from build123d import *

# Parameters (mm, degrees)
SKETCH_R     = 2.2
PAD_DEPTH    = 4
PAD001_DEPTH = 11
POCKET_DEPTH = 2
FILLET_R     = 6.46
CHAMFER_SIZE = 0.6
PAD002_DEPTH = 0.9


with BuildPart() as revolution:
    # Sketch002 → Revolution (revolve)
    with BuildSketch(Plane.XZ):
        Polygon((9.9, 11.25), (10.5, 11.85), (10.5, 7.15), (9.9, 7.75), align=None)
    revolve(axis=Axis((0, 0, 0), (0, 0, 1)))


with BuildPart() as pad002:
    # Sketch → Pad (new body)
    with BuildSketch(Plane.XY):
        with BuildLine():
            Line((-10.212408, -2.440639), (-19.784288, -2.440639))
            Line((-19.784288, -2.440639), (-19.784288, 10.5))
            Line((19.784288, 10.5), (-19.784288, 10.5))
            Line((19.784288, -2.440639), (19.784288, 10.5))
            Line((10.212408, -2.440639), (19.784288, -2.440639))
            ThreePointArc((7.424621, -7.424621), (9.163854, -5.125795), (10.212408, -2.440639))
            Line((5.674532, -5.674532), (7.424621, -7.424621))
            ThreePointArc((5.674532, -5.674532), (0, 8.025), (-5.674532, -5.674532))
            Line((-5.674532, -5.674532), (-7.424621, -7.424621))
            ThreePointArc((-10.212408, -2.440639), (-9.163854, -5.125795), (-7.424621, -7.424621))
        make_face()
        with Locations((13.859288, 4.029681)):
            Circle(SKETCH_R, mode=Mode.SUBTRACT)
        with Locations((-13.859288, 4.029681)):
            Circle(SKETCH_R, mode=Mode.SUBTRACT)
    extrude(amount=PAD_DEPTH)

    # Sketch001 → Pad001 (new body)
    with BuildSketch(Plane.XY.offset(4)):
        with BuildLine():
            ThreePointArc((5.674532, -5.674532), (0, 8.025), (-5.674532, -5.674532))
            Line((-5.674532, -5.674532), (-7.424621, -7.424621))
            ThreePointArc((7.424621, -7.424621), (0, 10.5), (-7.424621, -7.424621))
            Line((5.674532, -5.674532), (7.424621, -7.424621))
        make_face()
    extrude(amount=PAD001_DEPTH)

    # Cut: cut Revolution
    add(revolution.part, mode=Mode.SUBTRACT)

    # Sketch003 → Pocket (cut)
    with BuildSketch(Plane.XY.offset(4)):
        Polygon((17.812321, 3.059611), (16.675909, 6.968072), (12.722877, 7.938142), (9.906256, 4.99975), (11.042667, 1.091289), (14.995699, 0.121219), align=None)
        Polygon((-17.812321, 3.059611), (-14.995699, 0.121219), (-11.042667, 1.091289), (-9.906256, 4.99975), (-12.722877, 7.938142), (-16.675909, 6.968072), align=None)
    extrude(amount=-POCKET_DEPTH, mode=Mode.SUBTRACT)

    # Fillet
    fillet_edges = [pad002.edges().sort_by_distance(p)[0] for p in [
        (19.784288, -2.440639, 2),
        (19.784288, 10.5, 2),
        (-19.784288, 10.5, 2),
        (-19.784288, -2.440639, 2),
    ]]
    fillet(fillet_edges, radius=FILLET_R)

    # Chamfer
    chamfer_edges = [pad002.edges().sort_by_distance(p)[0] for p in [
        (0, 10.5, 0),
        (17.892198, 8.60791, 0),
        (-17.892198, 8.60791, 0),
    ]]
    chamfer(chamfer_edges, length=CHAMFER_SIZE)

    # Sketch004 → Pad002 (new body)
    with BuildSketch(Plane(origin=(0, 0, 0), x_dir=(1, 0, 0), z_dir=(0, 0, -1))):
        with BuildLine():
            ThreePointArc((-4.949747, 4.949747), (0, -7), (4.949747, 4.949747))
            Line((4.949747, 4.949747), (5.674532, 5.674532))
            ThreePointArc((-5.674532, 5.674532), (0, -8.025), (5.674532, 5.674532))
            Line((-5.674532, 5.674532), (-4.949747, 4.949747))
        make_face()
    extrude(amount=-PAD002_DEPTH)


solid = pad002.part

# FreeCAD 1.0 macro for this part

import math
import FreeCAD as App
import Part
import Sketcher
from FreeCAD import Vector


def edges_at(feature, points):
    """Names of the edges that pass closest to the given points."""
    edges = feature.Shape.Edges
    near = lambda p: min(range(len(edges)), key=lambda i: edges[i].distToShape(Part.Vertex(*p))[0])
    return sorted({f"Edge{near(p) + 1}" for p in points})


def add_polygon(sketch, points):
    """Adds a closed chain of lines whose ends are joined by coincident constraints."""
    first, n = sketch.GeometryCount, len(points)
    for a, b in zip(points, points[1:] + points[:1]):
        sketch.addGeometry(Part.LineSegment(App.Vector(*a, 0), App.Vector(*b, 0)), False)
    for i in range(n):
        sketch.addConstraint(Sketcher.Constraint("Coincident", first + i, 2, first + (i + 1) % n, 1))

doc = App.newDocument("Part")
params = doc.addObject("Spreadsheet::Sheet", "Params")
for row, (alias, value) in enumerate([
    ("sketch1_height", "3.5 mm"),
    ("sketch1_height2", "4.7 mm"),
    ("revolution_angle", "360 deg"),
    ("sketch2_diameter", "4.4 mm"),
    ("sketch2_radius", "10.5 mm"),
    ("pad1_length", "4 mm"),
    ("sketch3_radius", "10.5 mm"),
    ("pad2_length", "11 mm"),
    ("pocket1_length", "2 mm"),
    ("fillet_radius", "6.46 mm"),
    ("chamfer_size", "0.6 mm"),
    ("sketch5_radius", "7 mm"),
    ("pad3_length", "0.9 mm"),
], start=1):
    params.set(f"A{row}", alias)
    params.set(f"B{row}", "=" + value)
    params.setAlias(f"B{row}", alias)

body = doc.addObject("PartDesign::Body", "Body")

# Sketch on XZ plane
sketch1 = doc.addObject("Sketcher::SketchObject", "Sketch")
body.addObject(sketch1)
sketch1.AttachmentSupport = (doc.XZ_Plane, [""])
sketch1.MapMode = "FlatFace"
add_polygon(sketch1, [(10.5, 11.8), (9.9, 11.2), (9.9, 7.8), (10.5, 7.2)])  # lines 0-3
sketch1.addConstraint([
    Sketcher.Constraint("Vertical", 1),
    Sketcher.Constraint("Vertical", 3),
    Sketcher.Constraint("Perpendicular", 0, 2),
    Sketcher.Constraint("Equal", 0, 2),
    Sketcher.Constraint("DistanceY", 1, 2, 1, 1, 3.5),
    Sketcher.Constraint("DistanceY", 3, 1, 3, 2, 4.7),
    Sketcher.Constraint("DistanceX", -1, 1, 0, 2, 9.9),
    Sketcher.Constraint("DistanceY", -1, 1, 0, 2, 11.25),
])
sketch1.setExpression("Constraints[8]", "Params.sketch1_height")
sketch1.setExpression("Constraints[9]", "Params.sketch1_height2")
revolution = doc.addObject("PartDesign::Revolution", "Revolution")
body.addObject(revolution)
revolution.Profile = sketch1
revolution.ReferenceAxis = (sketch1, ["V_Axis"])
revolution.setExpression("Angle", "Params.revolution_angle")
body2 = doc.addObject("PartDesign::Body", "Body001")

# Sketch on XY plane
sketch2 = doc.addObject("Sketcher::SketchObject", "Sketch001")
body2.addObject(sketch2)
sketch2.AttachmentSupport = (doc.getObject("XY_Plane001"), [""])
sketch2.MapMode = "FlatFace"
sketch2.addGeometry([
    Part.LineSegment(Vector(-19.8, -2.4, 0), Vector(-10.2, -2.4, 0)),  # 0
    Part.ArcOfCircle(Part.Circle(Vector(0, 0, 0), Vector(0, 0, 1), 10.5), math.radians(-167), math.radians(-135)),  # 1
    Part.LineSegment(Vector(-7.4, -7.4, 0), Vector(-5.7, -5.7, 0)),  # 2
    Part.ArcOfCircle(Part.Circle(Vector(0, 0, 0), Vector(0, 0, 1), 8), math.radians(-45), math.radians(225)),  # 3
    Part.LineSegment(Vector(5.7, -5.7, 0), Vector(7.4, -7.4, 0)),  # 4
    Part.ArcOfCircle(Part.Circle(Vector(0, 0, 0), Vector(0, 0, 1), 10.5), math.radians(-45), math.radians(-13)),  # 5
    Part.LineSegment(Vector(10.2, -2.4, 0), Vector(19.8, -2.4, 0)),  # 6
    Part.LineSegment(Vector(19.8, -2.4, 0), Vector(19.8, 10.5, 0)),  # 7
    Part.LineSegment(Vector(19.8, 10.5, 0), Vector(-19.8, 10.5, 0)),  # 8
    Part.LineSegment(Vector(-19.8, 10.5, 0), Vector(-19.8, -2.4, 0)),  # 9
    Part.Circle(Vector(13.9, 4, 0), Vector(0, 0, 1), 2.2),  # 10
    Part.Circle(Vector(-13.9, 4, 0), Vector(0, 0, 1), 2.2),  # 11
], False)
sketch2.addConstraint([
    Sketcher.Constraint("Coincident", 0, 2, 1, 1),
    Sketcher.Constraint("Coincident", 1, 2, 2, 1),
    Sketcher.Constraint("Coincident", 2, 2, 3, 2),
    Sketcher.Constraint("Coincident", 3, 1, 4, 1),
    Sketcher.Constraint("Coincident", 4, 2, 5, 1),
    Sketcher.Constraint("Coincident", 5, 2, 6, 1),
    Sketcher.Constraint("Coincident", 6, 2, 7, 1),
    Sketcher.Constraint("Coincident", 7, 2, 8, 1),
    Sketcher.Constraint("Coincident", 8, 2, 9, 1),
    Sketcher.Constraint("Coincident", 9, 2, 0, 1),
    Sketcher.Constraint("Horizontal", 0),
    Sketcher.Constraint("Horizontal", 6),
    Sketcher.Constraint("Vertical", 7),
    Sketcher.Constraint("Horizontal", 8),
    Sketcher.Constraint("Vertical", 9),
    Sketcher.Constraint("Coincident", 1, 3, -1, 1),
    Sketcher.Constraint("Coincident", 3, 3, -1, 1),
    Sketcher.Constraint("Coincident", 5, 3, -1, 1),
    Sketcher.Constraint("Equal", 1, 5),
    Sketcher.Constraint("Equal", 10, 11),
    Sketcher.Constraint("Symmetric", 10, 3, 11, 3, -2),
    Sketcher.Constraint("Symmetric", 6, 2, 9, 2, -2),
    Sketcher.Constraint("Perpendicular", 2, 4),
    Sketcher.Constraint("Horizontal", 2, 2, 3, 1),
    Sketcher.Constraint("Horizontal", 1, 2, 4, 2),
    Sketcher.Constraint("Diameter", 10, 4.4),
    Sketcher.Constraint("Radius", 1, 10.5),
    Sketcher.Constraint("Radius", 3, 8.025),
    Sketcher.Constraint("DistanceY", -1, 1, 7, 2, 10.5),
    Sketcher.Constraint("DistanceX", 10, 3, 6, 2, 5.925),
    Sketcher.Constraint("DistanceX", 0, 1, 0, 2, 9.57188),
    Sketcher.Constraint("DistanceY", 7, 1, 7, 2, 12.940639),
    Sketcher.Constraint("DistanceY", -1, 1, 10, 3, 4.029681),
    Sketcher.Constraint("DistanceX", 1, 2, -1, 1, 7.424621),
])
sketch2.setExpression("Constraints[25]", "Params.sketch2_diameter")
sketch2.setExpression("Constraints[26]", "Params.sketch2_radius")
pad1 = doc.addObject("PartDesign::Pad", "Pad")
body2.addObject(pad1)
pad1.Profile = sketch2
pad1.setExpression("Length", "Params.pad1_length")

# Sketch on XY plane
sketch3 = doc.addObject("Sketcher::SketchObject", "Sketch002")
body2.addObject(sketch3)
sketch3.AttachmentSupport = (doc.getObject("XY_Plane001"), [""])
sketch3.MapMode = "FlatFace"
sketch3.AttachmentOffset = App.Placement(Vector(0, 0, 4), App.Rotation())
sketch3.addGeometry([
    Part.ArcOfCircle(Part.Circle(Vector(0, 0, 0), Vector(0, 0, 1), 8), math.radians(-45), math.radians(225)),
    Part.LineSegment(Vector(5.7, -5.7, 0), Vector(7.4, -7.4, 0)),
    Part.ArcOfCircle(Part.Circle(Vector(0, 0, 0), Vector(0, 0, 1), 10.5), math.radians(-45), math.radians(225)),
    Part.LineSegment(Vector(-7.4, -7.4, 0), Vector(-5.7, -5.7, 0)),
], False)
sketch3.addConstraint([
    Sketcher.Constraint("Coincident", 0, 1, 1, 1),
    Sketcher.Constraint("Coincident", 1, 2, 2, 1),
    Sketcher.Constraint("Coincident", 2, 2, 3, 1),
    Sketcher.Constraint("Coincident", 3, 2, 0, 2),
    Sketcher.Constraint("Coincident", 0, 3, -1, 1),
    Sketcher.Constraint("Coincident", 2, 3, -1, 1),
    Sketcher.Constraint("Perpendicular", 1, 3),
    Sketcher.Constraint("Horizontal", 1, 2, 2, 2),
    Sketcher.Constraint("Horizontal", 0, 1, 3, 2),
    Sketcher.Constraint("Radius", 2, 10.5),
    Sketcher.Constraint("Radius", 0, 8.025),
    Sketcher.Constraint("DistanceX", -1, 1, 0, 1, 5.674532),
])
sketch3.setExpression("Constraints[9]", "Params.sketch3_radius")
pad2 = doc.addObject("PartDesign::Pad", "Pad001")
body2.addObject(pad2)
pad2.Profile = sketch3
pad2.setExpression("Length", "Params.pad2_length")
doc.recompute()

boolean = doc.addObject("PartDesign::Boolean", "Boolean")
body2.addObject(boolean)
boolean.Type = "Cut"
boolean.addObjects([body])

# Sketch on XY plane
sketch4 = doc.addObject("Sketcher::SketchObject", "Sketch003")
body2.addObject(sketch4)
sketch4.AttachmentSupport = (doc.getObject("XY_Plane001"), [""])
sketch4.MapMode = "FlatFace"
sketch4.AttachmentOffset = App.Placement(Vector(0, 0, 4), App.Rotation())
add_polygon(sketch4, [(17.8, 3.1), (16.7, 7), (12.7, 7.9), (9.9, 5), (11, 1.1), (15, 0.1)])  # lines 0-5
add_polygon(sketch4, [(-17.8, 3.1), (-15, 0.1), (-11, 1.1), (-9.9, 5), (-12.7, 7.9), (-16.7, 7)])  # lines 6-11
sketch4.addConstraint([
    Sketcher.Constraint("Symmetric", 4, 2, 6, 2, -2),
    Sketcher.Constraint("Symmetric", 3, 2, 7, 2, -2),
    Sketcher.Constraint("Symmetric", 2, 2, 8, 2, -2),
    Sketcher.Constraint("Symmetric", 1, 2, 9, 2, -2),
    Sketcher.Constraint("Symmetric", 0, 2, 10, 2, -2),
    Sketcher.Constraint("Symmetric", 5, 2, 11, 2, -2),
    Sketcher.Constraint("Parallel", 0, 3),
    Sketcher.Constraint("Parallel", 1, 4),
    Sketcher.Constraint("Parallel", 2, 5),
    Sketcher.Constraint("Equal", 0, 1),
    Sketcher.Constraint("Equal", 1, 2),
    Sketcher.Constraint("Equal", 2, 3),
    Sketcher.Constraint("DistanceX", -1, 1, 4, 2, 14.995699),
    Sketcher.Constraint("Distance", 0, 4.070319),
    Sketcher.Constraint("DistanceX", -1, 1, 0, 2, 16.675909),
    Sketcher.Constraint("DistanceY", -1, 1, 2, 2, 4.99975),
    Sketcher.Constraint("DistanceY", -1, 1, 3, 2, 1.091289),
    Sketcher.Constraint("DistanceY", -1, 1, 4, 2, 0.121219),
])
pocket1 = doc.addObject("PartDesign::Pocket", "Pocket")
body2.addObject(pocket1)
pocket1.Profile = sketch4
pocket1.setExpression("Length", "Params.pocket1_length")
doc.recompute()

fillet = doc.addObject("PartDesign::Fillet", "Fillet")
body2.addObject(fillet)
fillet.Base = (pocket1, edges_at(pocket1, [
    (19.784, -2.441, 2),
    (19.784, 10.5, 2),
    (-19.784, 10.5, 2),
    (-19.784, -2.441, 2),
]))
fillet.setExpression("Radius", "Params.fillet_radius")
doc.recompute()

chamfer = doc.addObject("PartDesign::Chamfer", "Chamfer")
body2.addObject(chamfer)
chamfer.Base = (fillet, edges_at(fillet, [(0, 10.5, 0), (17.892, 8.608, 0), (-17.892, 8.608, 0)]))
chamfer.setExpression("Size", "Params.chamfer_size")

# Sketch on XY plane
sketch5 = doc.addObject("Sketcher::SketchObject", "Sketch004")
body2.addObject(sketch5)
sketch5.AttachmentSupport = (doc.getObject("XY_Plane001"), [""])
sketch5.MapMode = "FlatFace"
sketch5.addGeometry([
    Part.ArcOfCircle(Part.Circle(Vector(0, 0, 0), Vector(0, 0, 1), 7), math.radians(-45), math.radians(225)),
    Part.LineSegment(Vector(-4.9, -4.9, 0), Vector(-5.7, -5.7, 0)),
    Part.ArcOfCircle(Part.Circle(Vector(0, 0, 0), Vector(0, 0, 1), 8), math.radians(-45), math.radians(225)),
    Part.LineSegment(Vector(5.7, -5.7, 0), Vector(4.9, -4.9, 0)),
], False)
sketch5.addConstraint([
    Sketcher.Constraint("Coincident", 0, 2, 1, 1),
    Sketcher.Constraint("Coincident", 1, 2, 2, 2),
    Sketcher.Constraint("Coincident", 2, 1, 3, 1),
    Sketcher.Constraint("Coincident", 3, 2, 0, 1),
    Sketcher.Constraint("Coincident", 0, 3, -1, 1),
    Sketcher.Constraint("Coincident", 2, 3, -1, 1),
    Sketcher.Constraint("Perpendicular", 1, 3),
    Sketcher.Constraint("Horizontal", 1, 2, 2, 1),
    Sketcher.Constraint("Horizontal", 0, 2, 3, 2),
    Sketcher.Constraint("Radius", 0, 7.0),
    Sketcher.Constraint("Radius", 2, 8.025),
    Sketcher.Constraint("DistanceX", -1, 1, 2, 1, 5.674532),
])
sketch5.setExpression("Constraints[9]", "Params.sketch5_radius")
pad3 = doc.addObject("PartDesign::Pad", "Pad002")
body2.addObject(pad3)
pad3.Profile = sketch5
pad3.setExpression("Length", "Params.pad3_length")

doc.recompute()
